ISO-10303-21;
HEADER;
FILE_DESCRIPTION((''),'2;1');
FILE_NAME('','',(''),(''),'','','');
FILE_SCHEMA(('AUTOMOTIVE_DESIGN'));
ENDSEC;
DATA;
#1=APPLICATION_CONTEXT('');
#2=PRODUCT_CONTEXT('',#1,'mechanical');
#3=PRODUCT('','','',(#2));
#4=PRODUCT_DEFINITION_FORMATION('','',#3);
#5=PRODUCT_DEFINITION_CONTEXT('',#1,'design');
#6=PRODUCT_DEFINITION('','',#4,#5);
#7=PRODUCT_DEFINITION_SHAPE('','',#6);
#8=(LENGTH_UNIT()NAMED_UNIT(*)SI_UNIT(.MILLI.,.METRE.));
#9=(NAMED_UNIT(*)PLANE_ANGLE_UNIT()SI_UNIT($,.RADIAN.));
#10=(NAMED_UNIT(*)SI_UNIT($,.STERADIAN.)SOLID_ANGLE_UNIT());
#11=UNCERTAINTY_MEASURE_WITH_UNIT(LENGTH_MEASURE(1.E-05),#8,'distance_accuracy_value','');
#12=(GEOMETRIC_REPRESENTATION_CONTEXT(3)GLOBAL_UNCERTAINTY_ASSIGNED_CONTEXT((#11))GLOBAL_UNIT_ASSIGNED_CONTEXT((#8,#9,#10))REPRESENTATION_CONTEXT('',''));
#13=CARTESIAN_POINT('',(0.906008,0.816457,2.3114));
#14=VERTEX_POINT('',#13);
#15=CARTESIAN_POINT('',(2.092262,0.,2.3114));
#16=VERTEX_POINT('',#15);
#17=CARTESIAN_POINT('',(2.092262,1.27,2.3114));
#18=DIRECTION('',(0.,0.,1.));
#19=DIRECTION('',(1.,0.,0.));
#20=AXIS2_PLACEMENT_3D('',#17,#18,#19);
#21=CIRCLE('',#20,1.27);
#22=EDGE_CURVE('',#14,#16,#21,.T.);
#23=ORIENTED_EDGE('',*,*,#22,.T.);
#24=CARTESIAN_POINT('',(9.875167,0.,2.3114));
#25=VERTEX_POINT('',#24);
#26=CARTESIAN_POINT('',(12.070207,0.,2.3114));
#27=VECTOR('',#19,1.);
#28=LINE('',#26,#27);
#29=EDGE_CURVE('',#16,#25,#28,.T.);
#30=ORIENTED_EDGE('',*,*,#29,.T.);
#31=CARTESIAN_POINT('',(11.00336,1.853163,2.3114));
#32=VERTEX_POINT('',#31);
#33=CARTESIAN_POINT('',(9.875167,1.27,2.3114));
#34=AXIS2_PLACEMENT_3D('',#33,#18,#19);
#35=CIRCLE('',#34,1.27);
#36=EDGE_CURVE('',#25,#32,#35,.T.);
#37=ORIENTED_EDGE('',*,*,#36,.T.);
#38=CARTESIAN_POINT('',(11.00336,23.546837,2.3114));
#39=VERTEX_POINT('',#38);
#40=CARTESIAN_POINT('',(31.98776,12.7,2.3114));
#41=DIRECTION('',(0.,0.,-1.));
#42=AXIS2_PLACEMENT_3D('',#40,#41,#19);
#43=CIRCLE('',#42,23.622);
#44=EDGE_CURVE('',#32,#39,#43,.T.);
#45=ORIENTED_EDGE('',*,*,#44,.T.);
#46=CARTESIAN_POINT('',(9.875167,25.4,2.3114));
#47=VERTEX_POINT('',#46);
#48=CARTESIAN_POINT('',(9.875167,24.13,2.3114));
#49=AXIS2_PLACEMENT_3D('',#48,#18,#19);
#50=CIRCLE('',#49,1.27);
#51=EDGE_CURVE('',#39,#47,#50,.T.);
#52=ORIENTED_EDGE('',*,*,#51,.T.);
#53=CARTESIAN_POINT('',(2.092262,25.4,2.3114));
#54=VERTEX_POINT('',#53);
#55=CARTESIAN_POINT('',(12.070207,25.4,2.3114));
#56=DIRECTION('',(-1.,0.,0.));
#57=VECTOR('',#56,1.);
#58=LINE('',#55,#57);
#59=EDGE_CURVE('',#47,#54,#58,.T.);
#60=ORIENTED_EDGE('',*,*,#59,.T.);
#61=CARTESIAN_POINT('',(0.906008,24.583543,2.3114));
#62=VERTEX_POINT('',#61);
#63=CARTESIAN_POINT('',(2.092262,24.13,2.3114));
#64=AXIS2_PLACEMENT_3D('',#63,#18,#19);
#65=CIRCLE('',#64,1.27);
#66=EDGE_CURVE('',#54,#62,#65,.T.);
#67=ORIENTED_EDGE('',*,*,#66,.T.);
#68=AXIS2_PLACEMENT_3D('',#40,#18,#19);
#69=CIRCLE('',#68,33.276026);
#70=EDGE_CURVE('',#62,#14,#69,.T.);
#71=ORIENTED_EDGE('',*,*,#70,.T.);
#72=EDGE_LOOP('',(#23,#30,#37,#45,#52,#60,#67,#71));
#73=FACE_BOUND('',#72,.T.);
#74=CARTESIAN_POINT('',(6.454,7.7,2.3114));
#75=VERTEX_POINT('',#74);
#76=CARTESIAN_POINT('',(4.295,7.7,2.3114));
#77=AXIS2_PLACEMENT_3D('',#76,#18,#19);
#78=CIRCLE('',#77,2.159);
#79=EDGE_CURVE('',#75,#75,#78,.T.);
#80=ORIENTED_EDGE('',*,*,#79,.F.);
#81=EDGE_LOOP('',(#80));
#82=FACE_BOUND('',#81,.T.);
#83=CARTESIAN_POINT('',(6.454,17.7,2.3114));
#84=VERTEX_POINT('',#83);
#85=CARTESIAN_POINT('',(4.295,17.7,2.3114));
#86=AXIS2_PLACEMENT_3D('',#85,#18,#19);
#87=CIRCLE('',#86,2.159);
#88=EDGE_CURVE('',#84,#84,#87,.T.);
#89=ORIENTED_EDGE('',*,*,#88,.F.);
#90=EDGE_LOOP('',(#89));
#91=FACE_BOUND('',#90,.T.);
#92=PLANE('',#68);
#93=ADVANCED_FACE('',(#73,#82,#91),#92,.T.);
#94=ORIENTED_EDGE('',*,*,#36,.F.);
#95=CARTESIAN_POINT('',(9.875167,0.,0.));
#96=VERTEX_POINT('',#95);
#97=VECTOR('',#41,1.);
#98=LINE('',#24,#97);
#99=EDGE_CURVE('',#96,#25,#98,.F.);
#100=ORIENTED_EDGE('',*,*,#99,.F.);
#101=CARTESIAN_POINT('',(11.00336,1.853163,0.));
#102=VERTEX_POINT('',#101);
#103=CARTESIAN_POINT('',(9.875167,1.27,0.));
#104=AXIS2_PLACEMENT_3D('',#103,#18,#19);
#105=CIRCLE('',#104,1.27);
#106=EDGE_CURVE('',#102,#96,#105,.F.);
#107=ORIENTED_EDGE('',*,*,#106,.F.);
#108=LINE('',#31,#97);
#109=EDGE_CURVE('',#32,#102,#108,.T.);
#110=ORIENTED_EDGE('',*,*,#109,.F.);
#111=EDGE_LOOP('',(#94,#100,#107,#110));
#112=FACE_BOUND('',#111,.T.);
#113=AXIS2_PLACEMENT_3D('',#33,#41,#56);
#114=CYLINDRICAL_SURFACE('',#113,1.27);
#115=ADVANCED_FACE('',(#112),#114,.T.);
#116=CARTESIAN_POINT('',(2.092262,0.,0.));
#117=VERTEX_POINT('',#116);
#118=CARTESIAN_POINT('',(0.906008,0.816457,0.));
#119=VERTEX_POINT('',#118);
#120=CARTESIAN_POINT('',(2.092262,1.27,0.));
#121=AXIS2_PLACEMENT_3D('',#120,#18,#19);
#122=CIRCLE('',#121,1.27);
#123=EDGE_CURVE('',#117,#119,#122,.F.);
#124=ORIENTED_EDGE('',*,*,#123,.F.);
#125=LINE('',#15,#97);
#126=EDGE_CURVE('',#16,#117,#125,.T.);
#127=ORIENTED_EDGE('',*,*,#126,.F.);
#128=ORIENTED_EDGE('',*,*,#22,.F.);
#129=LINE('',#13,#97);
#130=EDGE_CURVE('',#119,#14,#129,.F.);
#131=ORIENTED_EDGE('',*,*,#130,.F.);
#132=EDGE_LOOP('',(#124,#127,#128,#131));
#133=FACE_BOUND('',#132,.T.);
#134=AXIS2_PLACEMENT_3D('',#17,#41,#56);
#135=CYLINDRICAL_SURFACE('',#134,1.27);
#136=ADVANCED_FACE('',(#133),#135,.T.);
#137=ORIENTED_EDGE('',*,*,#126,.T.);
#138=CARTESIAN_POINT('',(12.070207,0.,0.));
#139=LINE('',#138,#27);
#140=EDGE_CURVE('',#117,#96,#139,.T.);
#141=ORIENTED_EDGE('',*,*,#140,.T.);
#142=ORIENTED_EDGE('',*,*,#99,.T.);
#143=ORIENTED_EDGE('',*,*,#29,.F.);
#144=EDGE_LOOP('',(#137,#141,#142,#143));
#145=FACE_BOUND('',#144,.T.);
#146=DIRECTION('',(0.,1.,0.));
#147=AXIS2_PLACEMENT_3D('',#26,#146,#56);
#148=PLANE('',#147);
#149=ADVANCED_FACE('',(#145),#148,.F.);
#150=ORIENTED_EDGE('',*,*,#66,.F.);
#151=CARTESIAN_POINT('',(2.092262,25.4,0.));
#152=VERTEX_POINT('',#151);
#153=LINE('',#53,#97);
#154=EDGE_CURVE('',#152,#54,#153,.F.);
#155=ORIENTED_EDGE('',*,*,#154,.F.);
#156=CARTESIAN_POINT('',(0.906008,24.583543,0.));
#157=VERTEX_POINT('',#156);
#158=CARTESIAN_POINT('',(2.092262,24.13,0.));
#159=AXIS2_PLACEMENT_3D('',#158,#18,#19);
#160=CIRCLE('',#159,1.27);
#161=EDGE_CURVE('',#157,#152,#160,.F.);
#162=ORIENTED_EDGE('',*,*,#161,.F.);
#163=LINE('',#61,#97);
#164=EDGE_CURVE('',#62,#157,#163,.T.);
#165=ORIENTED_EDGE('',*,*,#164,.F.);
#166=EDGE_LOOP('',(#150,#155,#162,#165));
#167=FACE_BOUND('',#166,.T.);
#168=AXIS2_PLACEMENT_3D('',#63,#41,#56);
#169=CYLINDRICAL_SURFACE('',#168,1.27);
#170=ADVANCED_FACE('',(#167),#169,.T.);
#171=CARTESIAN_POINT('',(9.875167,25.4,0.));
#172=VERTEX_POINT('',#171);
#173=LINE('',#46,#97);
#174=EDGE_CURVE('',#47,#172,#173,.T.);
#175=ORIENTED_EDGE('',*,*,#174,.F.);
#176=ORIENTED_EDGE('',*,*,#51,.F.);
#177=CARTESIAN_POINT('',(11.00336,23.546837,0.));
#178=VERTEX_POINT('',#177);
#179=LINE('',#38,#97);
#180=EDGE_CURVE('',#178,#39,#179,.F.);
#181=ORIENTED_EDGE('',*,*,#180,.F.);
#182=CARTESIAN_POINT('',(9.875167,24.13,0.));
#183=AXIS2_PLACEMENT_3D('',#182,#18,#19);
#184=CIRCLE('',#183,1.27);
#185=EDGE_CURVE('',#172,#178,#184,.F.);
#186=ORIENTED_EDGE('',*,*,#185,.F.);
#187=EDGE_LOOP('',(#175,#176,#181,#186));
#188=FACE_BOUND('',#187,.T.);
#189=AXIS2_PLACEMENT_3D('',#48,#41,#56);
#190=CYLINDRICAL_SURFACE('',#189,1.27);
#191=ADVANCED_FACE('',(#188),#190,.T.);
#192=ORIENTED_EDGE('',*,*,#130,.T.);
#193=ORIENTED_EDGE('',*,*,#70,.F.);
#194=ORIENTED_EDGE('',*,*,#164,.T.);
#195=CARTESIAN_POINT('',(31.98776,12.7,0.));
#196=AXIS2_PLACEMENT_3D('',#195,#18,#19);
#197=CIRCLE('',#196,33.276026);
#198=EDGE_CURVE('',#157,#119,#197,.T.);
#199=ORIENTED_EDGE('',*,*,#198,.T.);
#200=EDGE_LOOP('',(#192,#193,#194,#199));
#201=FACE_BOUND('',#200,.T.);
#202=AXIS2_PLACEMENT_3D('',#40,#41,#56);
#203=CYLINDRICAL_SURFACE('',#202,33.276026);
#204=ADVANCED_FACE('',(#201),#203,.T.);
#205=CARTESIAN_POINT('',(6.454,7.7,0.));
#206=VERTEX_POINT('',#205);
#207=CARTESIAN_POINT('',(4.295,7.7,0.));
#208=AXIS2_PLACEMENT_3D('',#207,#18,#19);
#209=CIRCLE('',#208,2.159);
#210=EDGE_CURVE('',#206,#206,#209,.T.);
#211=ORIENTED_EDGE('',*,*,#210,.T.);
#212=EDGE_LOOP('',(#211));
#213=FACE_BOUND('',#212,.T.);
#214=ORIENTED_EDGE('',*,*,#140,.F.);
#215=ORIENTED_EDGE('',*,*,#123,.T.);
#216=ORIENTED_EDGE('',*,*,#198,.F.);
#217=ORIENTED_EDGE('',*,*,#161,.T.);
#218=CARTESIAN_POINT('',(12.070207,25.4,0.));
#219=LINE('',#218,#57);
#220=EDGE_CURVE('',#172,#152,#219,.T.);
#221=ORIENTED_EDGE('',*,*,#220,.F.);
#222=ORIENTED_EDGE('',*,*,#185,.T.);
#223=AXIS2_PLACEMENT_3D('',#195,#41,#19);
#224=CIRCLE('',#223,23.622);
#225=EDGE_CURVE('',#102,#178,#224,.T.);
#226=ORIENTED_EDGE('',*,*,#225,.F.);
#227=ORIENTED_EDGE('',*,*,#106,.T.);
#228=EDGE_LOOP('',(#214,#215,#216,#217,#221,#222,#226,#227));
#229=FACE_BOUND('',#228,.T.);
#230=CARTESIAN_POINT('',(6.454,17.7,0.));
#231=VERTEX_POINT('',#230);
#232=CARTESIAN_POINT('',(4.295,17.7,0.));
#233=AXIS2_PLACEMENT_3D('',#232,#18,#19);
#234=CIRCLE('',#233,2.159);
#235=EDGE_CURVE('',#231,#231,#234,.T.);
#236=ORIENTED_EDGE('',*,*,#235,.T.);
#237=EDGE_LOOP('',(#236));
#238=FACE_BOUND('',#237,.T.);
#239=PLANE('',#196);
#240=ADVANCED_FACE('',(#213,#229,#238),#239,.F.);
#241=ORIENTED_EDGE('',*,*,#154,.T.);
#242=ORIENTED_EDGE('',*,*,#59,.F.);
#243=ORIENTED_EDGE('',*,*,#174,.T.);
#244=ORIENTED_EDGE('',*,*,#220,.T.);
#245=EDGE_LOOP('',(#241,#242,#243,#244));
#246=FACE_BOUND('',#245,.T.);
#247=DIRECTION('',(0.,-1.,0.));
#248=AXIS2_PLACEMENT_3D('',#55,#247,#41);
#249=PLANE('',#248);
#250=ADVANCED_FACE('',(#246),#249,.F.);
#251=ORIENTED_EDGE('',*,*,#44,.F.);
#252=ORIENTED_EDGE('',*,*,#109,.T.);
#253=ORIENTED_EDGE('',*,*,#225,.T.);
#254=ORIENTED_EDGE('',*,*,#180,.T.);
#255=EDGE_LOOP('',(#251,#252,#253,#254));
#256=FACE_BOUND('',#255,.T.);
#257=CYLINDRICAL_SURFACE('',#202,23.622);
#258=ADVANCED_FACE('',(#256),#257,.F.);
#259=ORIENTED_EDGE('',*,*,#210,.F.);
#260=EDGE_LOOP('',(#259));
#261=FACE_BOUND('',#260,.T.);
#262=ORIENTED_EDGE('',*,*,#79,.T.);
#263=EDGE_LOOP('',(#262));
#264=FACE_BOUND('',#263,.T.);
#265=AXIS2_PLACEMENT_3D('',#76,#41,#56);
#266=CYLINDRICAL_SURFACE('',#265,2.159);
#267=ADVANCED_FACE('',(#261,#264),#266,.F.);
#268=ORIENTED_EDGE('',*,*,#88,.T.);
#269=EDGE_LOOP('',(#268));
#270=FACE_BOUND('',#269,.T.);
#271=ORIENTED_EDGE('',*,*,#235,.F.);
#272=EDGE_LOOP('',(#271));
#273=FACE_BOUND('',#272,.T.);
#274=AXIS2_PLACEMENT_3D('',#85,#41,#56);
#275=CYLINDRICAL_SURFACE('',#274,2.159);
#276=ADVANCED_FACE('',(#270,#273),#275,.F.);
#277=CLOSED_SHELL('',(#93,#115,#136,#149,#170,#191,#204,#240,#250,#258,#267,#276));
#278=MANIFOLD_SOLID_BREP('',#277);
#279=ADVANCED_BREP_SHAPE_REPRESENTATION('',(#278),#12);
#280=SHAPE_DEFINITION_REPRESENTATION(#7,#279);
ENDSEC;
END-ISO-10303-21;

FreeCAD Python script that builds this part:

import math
import FreeCAD as App
import Part
import Sketcher
from FreeCAD import Vector
Q = App.Units.Quantity


def edges_at(feature, points):
    """Names of the edges that pass closest to the given points."""
    edges = feature.Shape.Edges
    near = lambda p: min(range(len(edges)), key=lambda i: edges[i].distToShape(Part.Vertex(*p))[0])
    return sorted({f"Edge{near(p) + 1}" for p in points})

doc = App.newDocument("Part")
params = doc.addObject("Spreadsheet::Sheet", "Params")
for row, (alias, value) in enumerate([
    ("sketch1_diameter", "0.17 in"),
    ("sketch1_radius", "0.93 in"),
    ("pad1_length", "0.091 in"),
    ("fillet_radius", "0.05 in"),
], start=1):
    params.set(f"A{row}", alias)
    params.set(f"B{row}", "=" + value)
    params.setAlias(f"B{row}", alias)

body = doc.addObject("PartDesign::Body", "Body")

# Sketch on XY plane
sketch1 = doc.addObject("Sketcher::SketchObject", "Sketch")
body.addObject(sketch1)
sketch1.AttachmentSupport = (doc.XY_Plane, [""])
sketch1.MapMode = "FlatFace"
sketch1.addGeometry([
    Part.LineSegment(Vector(12.1, 25.4, 0), Vector(1.2, 25.4, 0)),  # 0
    Part.ArcOfCircle(Part.Circle(Vector(32, 12.7, 0), Vector(0, 0, 1), 33.3), math.radians(158), math.radians(202)),  # 1
    Part.LineSegment(Vector(1.2, 0, 0), Vector(12.1, 0, 0)),  # 2
    Part.ArcOfCircle(Part.Circle(Vector(32, 12.7, 0), Vector(0, 0, 1), 23.6), math.radians(147), math.radians(213)),  # 3
    Part.Circle(Vector(4.3, 7.7, 0), Vector(0, 0, 1), 2.2),  # 4
    Part.Circle(Vector(4.3, 17.7, 0), Vector(0, 0, 1), 2.2),  # 5
], False)
sketch1.addConstraint([
    Sketcher.Constraint("Coincident", 0, 2, 1, 1),
    Sketcher.Constraint("Coincident", 1, 2, 2, 1),
    Sketcher.Constraint("Coincident", 2, 2, 3, 2),
    Sketcher.Constraint("Coincident", 3, 1, 0, 1),
    Sketcher.Constraint("Horizontal", 0),
    Sketcher.Constraint("Horizontal", 2),
    Sketcher.Constraint("Coincident", 3, 3, 1, 3),
    Sketcher.Constraint("Equal", 4, 5),
    Sketcher.Constraint("PointOnObject", 1, 2, -1),
    Sketcher.Constraint("Vertical", 4, 3, 5, 3),
    Sketcher.Constraint("Vertical", 0, 2, 1, 2),
    Sketcher.Constraint("Diameter", 4, Q("0.17 in")),
    Sketcher.Constraint("Radius", 3, Q("0.93 in")),
    Sketcher.Constraint("DistanceY", -1, 1, 0, 2, Q("1 in")),
    Sketcher.Constraint("Radius", 1, Q("33.276026 mm")),
    Sketcher.Constraint("DistanceX", -1, 1, 4, 3, Q("4.295 mm")),
    Sketcher.Constraint("DistanceY", -1, 1, 4, 3, Q("7.7 mm")),
    Sketcher.Constraint("DistanceY", -1, 1, 5, 3, Q("17.7 mm")),
    Sketcher.Constraint("DistanceX", -1, 1, 1, 3, Q("31.98776 mm")),
])
sketch1.setExpression("Constraints[11]", "Params.sketch1_diameter")
sketch1.setExpression("Constraints[12]", "Params.sketch1_radius")
pad1 = doc.addObject("PartDesign::Pad", "Pad")
body.addObject(pad1)
pad1.Profile = sketch1
pad1.setExpression("Length", "Params.pad1_length")
doc.recompute()

fillet = doc.addObject("PartDesign::Fillet", "Fillet")
body.addObject(fillet)
fillet.Base = (pad1, edges_at(pad1, [
    (1.231, 25.4, 1.156),
    (12.07, 25.4, 1.156),
    (12.07, 0, 1.156),
    (1.231, 0, 1.156),
]))
fillet.setExpression("Radius", "Params.fillet_radius")

doc.recompute()
